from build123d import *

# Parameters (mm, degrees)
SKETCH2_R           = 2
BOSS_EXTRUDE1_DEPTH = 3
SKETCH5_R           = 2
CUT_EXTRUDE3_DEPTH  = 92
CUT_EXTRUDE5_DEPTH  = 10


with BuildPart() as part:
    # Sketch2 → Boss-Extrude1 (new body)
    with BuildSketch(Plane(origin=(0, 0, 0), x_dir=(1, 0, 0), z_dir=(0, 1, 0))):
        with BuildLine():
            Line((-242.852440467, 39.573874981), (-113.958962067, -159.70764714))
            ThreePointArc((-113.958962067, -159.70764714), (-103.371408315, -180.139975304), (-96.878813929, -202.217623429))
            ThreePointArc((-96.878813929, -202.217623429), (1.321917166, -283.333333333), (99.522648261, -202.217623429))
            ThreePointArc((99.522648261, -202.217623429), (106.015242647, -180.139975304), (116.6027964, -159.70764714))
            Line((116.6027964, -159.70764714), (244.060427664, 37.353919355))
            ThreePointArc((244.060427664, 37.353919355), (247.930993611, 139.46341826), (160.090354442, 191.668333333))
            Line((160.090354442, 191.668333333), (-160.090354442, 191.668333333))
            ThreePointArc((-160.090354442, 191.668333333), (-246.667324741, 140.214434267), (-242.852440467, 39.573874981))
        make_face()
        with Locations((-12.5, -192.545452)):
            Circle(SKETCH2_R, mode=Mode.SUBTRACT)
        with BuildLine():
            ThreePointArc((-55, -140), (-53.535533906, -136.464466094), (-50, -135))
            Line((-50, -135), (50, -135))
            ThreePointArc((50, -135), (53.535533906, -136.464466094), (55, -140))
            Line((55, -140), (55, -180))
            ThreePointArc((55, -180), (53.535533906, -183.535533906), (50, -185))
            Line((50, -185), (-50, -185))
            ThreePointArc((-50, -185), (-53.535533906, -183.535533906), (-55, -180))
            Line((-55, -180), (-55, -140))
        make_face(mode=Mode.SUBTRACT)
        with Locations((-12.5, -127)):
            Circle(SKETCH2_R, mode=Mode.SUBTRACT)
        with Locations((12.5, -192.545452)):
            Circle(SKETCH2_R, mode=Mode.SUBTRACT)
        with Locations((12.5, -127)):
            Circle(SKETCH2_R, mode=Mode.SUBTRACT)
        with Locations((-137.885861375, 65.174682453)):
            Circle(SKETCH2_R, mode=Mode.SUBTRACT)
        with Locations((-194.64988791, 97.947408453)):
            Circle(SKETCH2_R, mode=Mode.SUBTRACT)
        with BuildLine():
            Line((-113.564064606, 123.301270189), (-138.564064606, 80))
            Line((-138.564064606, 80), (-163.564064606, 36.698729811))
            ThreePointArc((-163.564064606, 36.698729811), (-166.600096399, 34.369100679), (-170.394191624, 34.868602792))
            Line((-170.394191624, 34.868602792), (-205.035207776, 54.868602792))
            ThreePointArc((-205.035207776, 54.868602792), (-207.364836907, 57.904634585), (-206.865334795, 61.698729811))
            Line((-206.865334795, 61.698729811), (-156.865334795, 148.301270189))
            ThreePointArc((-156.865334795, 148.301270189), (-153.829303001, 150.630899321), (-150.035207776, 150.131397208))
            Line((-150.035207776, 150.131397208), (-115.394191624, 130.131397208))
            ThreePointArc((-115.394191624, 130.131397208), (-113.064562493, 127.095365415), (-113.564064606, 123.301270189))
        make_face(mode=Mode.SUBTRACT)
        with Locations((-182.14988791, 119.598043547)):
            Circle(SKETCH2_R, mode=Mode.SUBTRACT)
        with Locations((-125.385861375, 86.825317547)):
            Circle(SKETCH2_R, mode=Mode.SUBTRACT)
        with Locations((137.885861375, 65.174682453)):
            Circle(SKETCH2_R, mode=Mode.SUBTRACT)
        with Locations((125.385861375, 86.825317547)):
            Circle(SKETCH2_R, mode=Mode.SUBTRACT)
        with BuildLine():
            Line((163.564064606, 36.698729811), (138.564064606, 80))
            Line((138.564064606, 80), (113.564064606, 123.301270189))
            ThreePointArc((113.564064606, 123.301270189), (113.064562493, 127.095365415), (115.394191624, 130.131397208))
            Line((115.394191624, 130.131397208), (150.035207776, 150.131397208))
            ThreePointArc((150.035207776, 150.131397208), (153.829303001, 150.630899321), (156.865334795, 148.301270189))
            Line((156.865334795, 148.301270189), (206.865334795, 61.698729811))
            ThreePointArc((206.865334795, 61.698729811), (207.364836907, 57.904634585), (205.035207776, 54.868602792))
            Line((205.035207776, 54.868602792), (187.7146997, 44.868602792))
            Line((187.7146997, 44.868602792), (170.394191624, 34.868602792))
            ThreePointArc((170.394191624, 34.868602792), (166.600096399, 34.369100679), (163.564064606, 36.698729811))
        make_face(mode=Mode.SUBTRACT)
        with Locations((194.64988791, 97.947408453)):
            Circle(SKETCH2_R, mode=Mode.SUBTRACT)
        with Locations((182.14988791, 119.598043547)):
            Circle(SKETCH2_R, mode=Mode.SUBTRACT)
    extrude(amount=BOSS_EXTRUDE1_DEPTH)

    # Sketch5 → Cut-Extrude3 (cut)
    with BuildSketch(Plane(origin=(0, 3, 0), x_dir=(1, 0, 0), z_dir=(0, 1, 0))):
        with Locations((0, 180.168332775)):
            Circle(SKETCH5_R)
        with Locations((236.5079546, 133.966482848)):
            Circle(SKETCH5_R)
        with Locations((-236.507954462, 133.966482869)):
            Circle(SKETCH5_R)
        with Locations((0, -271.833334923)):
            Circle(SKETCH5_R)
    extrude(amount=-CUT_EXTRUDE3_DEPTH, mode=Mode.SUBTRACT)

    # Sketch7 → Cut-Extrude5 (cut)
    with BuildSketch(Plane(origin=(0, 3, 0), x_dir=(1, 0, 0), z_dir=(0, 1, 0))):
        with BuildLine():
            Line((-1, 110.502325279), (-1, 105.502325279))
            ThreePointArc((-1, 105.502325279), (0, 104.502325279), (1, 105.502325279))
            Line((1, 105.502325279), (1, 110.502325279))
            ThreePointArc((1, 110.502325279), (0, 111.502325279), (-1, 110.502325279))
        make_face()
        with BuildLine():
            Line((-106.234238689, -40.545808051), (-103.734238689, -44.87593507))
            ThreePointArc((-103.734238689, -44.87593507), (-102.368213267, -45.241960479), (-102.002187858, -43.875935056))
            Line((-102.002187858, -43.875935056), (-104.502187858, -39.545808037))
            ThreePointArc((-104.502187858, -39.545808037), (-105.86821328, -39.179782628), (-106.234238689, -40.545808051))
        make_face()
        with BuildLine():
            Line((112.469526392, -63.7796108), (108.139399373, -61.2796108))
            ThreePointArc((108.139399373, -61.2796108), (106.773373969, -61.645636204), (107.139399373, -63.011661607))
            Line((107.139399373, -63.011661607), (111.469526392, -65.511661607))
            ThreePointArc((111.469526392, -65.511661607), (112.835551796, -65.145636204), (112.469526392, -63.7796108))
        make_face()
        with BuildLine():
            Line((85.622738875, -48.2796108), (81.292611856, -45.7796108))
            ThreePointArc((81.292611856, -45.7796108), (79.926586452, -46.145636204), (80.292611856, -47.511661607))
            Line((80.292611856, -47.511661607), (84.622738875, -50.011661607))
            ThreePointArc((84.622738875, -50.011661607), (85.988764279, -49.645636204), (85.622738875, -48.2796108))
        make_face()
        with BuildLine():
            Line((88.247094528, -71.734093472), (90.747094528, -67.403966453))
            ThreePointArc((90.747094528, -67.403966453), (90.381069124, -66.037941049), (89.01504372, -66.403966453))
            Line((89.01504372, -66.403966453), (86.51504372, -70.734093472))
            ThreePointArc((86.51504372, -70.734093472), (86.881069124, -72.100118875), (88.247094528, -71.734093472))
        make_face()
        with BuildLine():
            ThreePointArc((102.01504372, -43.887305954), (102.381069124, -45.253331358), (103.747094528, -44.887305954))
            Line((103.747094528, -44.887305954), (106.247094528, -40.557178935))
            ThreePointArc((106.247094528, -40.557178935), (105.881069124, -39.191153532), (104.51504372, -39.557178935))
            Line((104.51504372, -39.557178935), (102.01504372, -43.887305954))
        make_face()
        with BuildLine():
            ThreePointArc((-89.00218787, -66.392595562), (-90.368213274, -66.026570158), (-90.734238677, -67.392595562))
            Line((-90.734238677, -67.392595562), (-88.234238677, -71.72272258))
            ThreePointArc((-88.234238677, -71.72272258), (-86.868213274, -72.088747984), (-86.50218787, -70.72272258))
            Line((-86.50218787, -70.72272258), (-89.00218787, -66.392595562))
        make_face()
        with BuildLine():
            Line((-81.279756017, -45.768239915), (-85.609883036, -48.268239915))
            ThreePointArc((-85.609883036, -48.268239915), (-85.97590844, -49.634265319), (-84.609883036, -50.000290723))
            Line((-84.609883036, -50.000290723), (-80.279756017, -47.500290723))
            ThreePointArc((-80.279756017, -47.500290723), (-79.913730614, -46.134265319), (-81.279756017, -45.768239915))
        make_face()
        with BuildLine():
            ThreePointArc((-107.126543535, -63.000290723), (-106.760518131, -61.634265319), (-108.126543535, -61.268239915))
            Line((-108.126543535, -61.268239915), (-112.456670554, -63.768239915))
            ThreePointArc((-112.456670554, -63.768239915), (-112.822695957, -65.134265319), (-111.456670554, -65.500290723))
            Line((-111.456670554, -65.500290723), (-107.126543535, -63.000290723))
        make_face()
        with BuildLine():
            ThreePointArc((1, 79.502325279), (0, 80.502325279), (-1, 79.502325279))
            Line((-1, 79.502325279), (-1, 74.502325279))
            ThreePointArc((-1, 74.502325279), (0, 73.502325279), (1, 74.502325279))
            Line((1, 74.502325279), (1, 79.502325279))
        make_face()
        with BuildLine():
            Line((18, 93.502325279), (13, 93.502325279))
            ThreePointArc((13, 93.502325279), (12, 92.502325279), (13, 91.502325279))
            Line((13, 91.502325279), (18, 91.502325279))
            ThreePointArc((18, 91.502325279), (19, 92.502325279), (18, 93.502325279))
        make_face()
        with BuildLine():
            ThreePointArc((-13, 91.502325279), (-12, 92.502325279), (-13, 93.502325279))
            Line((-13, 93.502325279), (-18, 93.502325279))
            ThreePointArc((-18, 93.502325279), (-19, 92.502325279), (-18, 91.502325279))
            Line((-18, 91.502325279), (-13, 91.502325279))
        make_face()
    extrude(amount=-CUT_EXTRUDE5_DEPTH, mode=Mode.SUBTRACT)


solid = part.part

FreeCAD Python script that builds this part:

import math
import FreeCAD as App
import Part
import Sketcher
Q = App.Units.Quantity

doc = App.newDocument("Part")
body = doc.addObject("PartDesign::Body", "Body")

sketch1 = body.newObject("Sketcher::SketchObject", "Sketch")
sketch1.AttachmentSupport = (doc.getObject("XZ_Plane"), [""])
sketch1.MapMode = "FlatFace"
sketch1.addGeometry(Part.LineSegment(App.Vector(-242.9, -39.6, 0), App.Vector(-114, 159.7, 0)), False)
sketch1.addGeometry(Part.ArcOfCircle(Part.Circle(App.Vector(-214.7, 224.9, 0), App.Vector(0, 0, 1), 120), math.radians(-33), math.radians(-11)), False)
sketch1.addGeometry(Part.ArcOfCircle(Part.Circle(App.Vector(1.3, 183.3, 0), App.Vector(0, 0, 1), 100), math.radians(11), math.radians(169)), False)
sketch1.addGeometry(Part.ArcOfCircle(Part.Circle(App.Vector(217.4, 224.9, 0), App.Vector(0, 0, 1), 120), math.radians(-169), math.radians(-147)), False)
sketch1.addGeometry(Part.LineSegment(App.Vector(116.6, 159.7, 0), App.Vector(244.1, -37.4, 0)), False)
sketch1.addGeometry(Part.ArcOfCircle(Part.Circle(App.Vector(160.1, -91.7, 0), App.Vector(0, 0, 1), 100), math.radians(-90), math.radians(33)), False)
sketch1.addGeometry(Part.LineSegment(App.Vector(160.1, -191.7, 0), App.Vector(-160.1, -191.7, 0)), False)
sketch1.addGeometry(Part.ArcOfCircle(Part.Circle(App.Vector(-160.1, -93.1, 0), App.Vector(0, 0, 1), 98.6), math.radians(147), math.radians(270)), False)
sketch1.addGeometry(Part.Circle(App.Vector(-12.5, 192.5, 0), App.Vector(0, 0, 1), 2), False)
sketch1.addGeometry(Part.Circle(App.Vector(-12.5, 127, 0), App.Vector(0, 0, 1), 2), False)
sketch1.addGeometry(Part.Circle(App.Vector(12.5, 192.5, 0), App.Vector(0, 0, 1), 2), False)
sketch1.addGeometry(Part.LineSegment(App.Vector(-55, 180, 0), App.Vector(-55, 140, 0)), False)
sketch1.addGeometry(Part.ArcOfCircle(Part.Circle(App.Vector(-50, 140, 0), App.Vector(0, 0, 1), 5), math.radians(180), math.radians(270)), False)
sketch1.addGeometry(Part.LineSegment(App.Vector(-50, 135, 0), App.Vector(50, 135, 0)), False)
sketch1.addGeometry(Part.ArcOfCircle(Part.Circle(App.Vector(50, 140, 0), App.Vector(0, 0, 1), 5), math.radians(-90), math.radians(0)), False)
sketch1.addGeometry(Part.LineSegment(App.Vector(55, 140, 0), App.Vector(55, 180, 0)), False)
sketch1.addGeometry(Part.ArcOfCircle(Part.Circle(App.Vector(50, 180, 0), App.Vector(0, 0, 1), 5), math.radians(0), math.radians(90)), False)
sketch1.addGeometry(Part.LineSegment(App.Vector(50, 185, 0), App.Vector(-50, 185, 0)), False)
sketch1.addGeometry(Part.ArcOfCircle(Part.Circle(App.Vector(-50, 180, 0), App.Vector(0, 0, 1), 5), math.radians(90), math.radians(180)), False)
sketch1.addGeometry(Part.Circle(App.Vector(12.5, 127, 0), App.Vector(0, 0, 1), 2), False)
sketch1.addGeometry(Part.Circle(App.Vector(-194.6, -97.9, 0), App.Vector(0, 0, 1), 2), False)
sketch1.addGeometry(Part.ArcOfCircle(Part.Circle(App.Vector(-117.9, -125.8, 0), App.Vector(0, 0, 1), 5), math.radians(-60), math.radians(30)), False)
sketch1.addGeometry(Part.LineSegment(App.Vector(-113.6, -123.3, 0), App.Vector(-163.6, -36.7, 0)), False)
sketch1.addGeometry(Part.ArcOfCircle(Part.Circle(App.Vector(-167.9, -39.2, 0), App.Vector(0, 0, 1), 5), math.radians(30), math.radians(120)), False)
sketch1.addGeometry(Part.LineSegment(App.Vector(-170.4, -34.9, 0), App.Vector(-205, -54.9, 0)), False)
sketch1.addGeometry(Part.ArcOfCircle(Part.Circle(App.Vector(-202.5, -59.2, 0), App.Vector(0, 0, 1), 5), math.radians(120), math.radians(210)), False)
sketch1.addGeometry(Part.LineSegment(App.Vector(-206.9, -61.7, 0), App.Vector(-156.9, -148.3, 0)), False)
sketch1.addGeometry(Part.ArcOfCircle(Part.Circle(App.Vector(-152.5, -145.8, 0), App.Vector(0, 0, 1), 5), math.radians(-150), math.radians(-60)), False)
sketch1.addGeometry(Part.LineSegment(App.Vector(-150, -150.1, 0), App.Vector(-115.4, -130.1, 0)), False)
sketch1.addGeometry(Part.Circle(App.Vector(-137.9, -65.2, 0), App.Vector(0, 0, 1), 2), False)
sketch1.addGeometry(Part.Circle(App.Vector(-125.4, -86.8, 0), App.Vector(0, 0, 1), 2), False)
sketch1.addGeometry(Part.Circle(App.Vector(-182.1, -119.6, 0), App.Vector(0, 0, 1), 2), False)
sketch1.addGeometry(Part.Circle(App.Vector(137.9, -65.2, 0), App.Vector(0, 0, 1), 2), False)
sketch1.addGeometry(Part.Circle(App.Vector(125.4, -86.8, 0), App.Vector(0, 0, 1), 2), False)
sketch1.addGeometry(Part.ArcOfCircle(Part.Circle(App.Vector(167.9, -39.2, 0), App.Vector(0, 0, 1), 5), math.radians(60), math.radians(150)), False)
sketch1.addGeometry(Part.LineSegment(App.Vector(163.6, -36.7, 0), App.Vector(113.6, -123.3, 0)), False)
sketch1.addGeometry(Part.ArcOfCircle(Part.Circle(App.Vector(117.9, -125.8, 0), App.Vector(0, 0, 1), 5), math.radians(150), math.radians(240)), False)
sketch1.addGeometry(Part.LineSegment(App.Vector(115.4, -130.1, 0), App.Vector(150, -150.1, 0)), False)
sketch1.addGeometry(Part.ArcOfCircle(Part.Circle(App.Vector(152.5, -145.8, 0), App.Vector(0, 0, 1), 5), math.radians(-120), math.radians(-30)), False)
sketch1.addGeometry(Part.LineSegment(App.Vector(156.9, -148.3, 0), App.Vector(206.9, -61.7, 0)), False)
sketch1.addGeometry(Part.ArcOfCircle(Part.Circle(App.Vector(202.5, -59.2, 0), App.Vector(0, 0, 1), 5), math.radians(-30), math.radians(60)), False)
sketch1.addGeometry(Part.LineSegment(App.Vector(205, -54.9, 0), App.Vector(170.4, -34.9, 0)), False)
sketch1.addGeometry(Part.Circle(App.Vector(194.6, -97.9, 0), App.Vector(0, 0, 1), 2), False)
sketch1.addGeometry(Part.Circle(App.Vector(182.1, -119.6, 0), App.Vector(0, 0, 1), 2), False)
sketch1.addConstraint(Sketcher.Constraint("Tangent", 0, 2, 1, 1))
sketch1.addConstraint(Sketcher.Constraint("Tangent", 1, 2, 2, 2))
sketch1.addConstraint(Sketcher.Constraint("Tangent", 2, 1, 3, 1))
sketch1.addConstraint(Sketcher.Constraint("Tangent", 3, 2, 4, 1))
sketch1.addConstraint(Sketcher.Constraint("Tangent", 4, 2, 5, 2))
sketch1.addConstraint(Sketcher.Constraint("Tangent", 5, 1, 6, 1))
sketch1.addConstraint(Sketcher.Constraint("Tangent", 6, 2, 7, 2))
sketch1.addConstraint(Sketcher.Constraint("Tangent", 7, 1, 0, 1))
sketch1.addConstraint(Sketcher.Constraint("Tangent", 11, 2, 12, 1))
sketch1.addConstraint(Sketcher.Constraint("Tangent", 12, 2, 13, 1))
sketch1.addConstraint(Sketcher.Constraint("Tangent", 13, 2, 14, 1))
sketch1.addConstraint(Sketcher.Constraint("Tangent", 14, 2, 15, 1))
sketch1.addConstraint(Sketcher.Constraint("Tangent", 15, 2, 16, 1))
sketch1.addConstraint(Sketcher.Constraint("Tangent", 16, 2, 17, 1))
sketch1.addConstraint(Sketcher.Constraint("Tangent", 17, 2, 18, 1))
sketch1.addConstraint(Sketcher.Constraint("Tangent", 18, 2, 11, 1))
sketch1.addConstraint(Sketcher.Constraint("Tangent", 21, 2, 22, 1))
sketch1.addConstraint(Sketcher.Constraint("Tangent", 22, 2, 23, 1))
sketch1.addConstraint(Sketcher.Constraint("Tangent", 23, 2, 24, 1))
sketch1.addConstraint(Sketcher.Constraint("Tangent", 24, 2, 25, 1))
sketch1.addConstraint(Sketcher.Constraint("Tangent", 25, 2, 26, 1))
sketch1.addConstraint(Sketcher.Constraint("Tangent", 26, 2, 27, 1))
sketch1.addConstraint(Sketcher.Constraint("Tangent", 27, 2, 28, 1))
sketch1.addConstraint(Sketcher.Constraint("Tangent", 28, 2, 21, 1))
sketch1.addConstraint(Sketcher.Constraint("Tangent", 34, 2, 35, 1))
sketch1.addConstraint(Sketcher.Constraint("Tangent", 35, 2, 36, 1))
sketch1.addConstraint(Sketcher.Constraint("Tangent", 36, 2, 37, 1))
sketch1.addConstraint(Sketcher.Constraint("Tangent", 37, 2, 38, 1))
sketch1.addConstraint(Sketcher.Constraint("Tangent", 38, 2, 39, 1))
sketch1.addConstraint(Sketcher.Constraint("Tangent", 39, 2, 40, 1))
sketch1.addConstraint(Sketcher.Constraint("Tangent", 40, 2, 41, 1))
sketch1.addConstraint(Sketcher.Constraint("Tangent", 41, 2, 34, 1))
sketch1.addConstraint(Sketcher.Constraint("Horizontal", 6))
sketch1.addConstraint(Sketcher.Constraint("Vertical", 11))
sketch1.addConstraint(Sketcher.Constraint("Horizontal", 13))
sketch1.addConstraint(Sketcher.Constraint("Vertical", 15))
sketch1.addConstraint(Sketcher.Constraint("Horizontal", 17))
sketch1.addConstraint(Sketcher.Constraint("Equal", 1, 3))
sketch1.addConstraint(Sketcher.Constraint("Equal", 8, 9))
sketch1.addConstraint(Sketcher.Constraint("Equal", 9, 10))
sketch1.addConstraint(Sketcher.Constraint("Equal", 12, 14))
sketch1.addConstraint(Sketcher.Constraint("Equal", 14, 16))
sketch1.addConstraint(Sketcher.Constraint("Equal", 16, 18))
sketch1.addConstraint(Sketcher.Constraint("Equal", 10, 19))
sketch1.addConstraint(Sketcher.Constraint("Equal", 19, 20))
sketch1.addConstraint(Sketcher.Constraint("Equal", 18, 21))
sketch1.addConstraint(Sketcher.Constraint("Equal", 21, 23))
sketch1.addConstraint(Sketcher.Constraint("Equal", 23, 25))
sketch1.addConstraint(Sketcher.Constraint("Equal", 25, 27))
sketch1.addConstraint(Sketcher.Constraint("Equal", 20, 29))
sketch1.addConstraint(Sketcher.Constraint("Equal", 29, 30))
sketch1.addConstraint(Sketcher.Constraint("Equal", 30, 31))
sketch1.addConstraint(Sketcher.Constraint("Equal", 31, 32))
sketch1.addConstraint(Sketcher.Constraint("Equal", 32, 33))
sketch1.addConstraint(Sketcher.Constraint("Equal", 27, 34))
sketch1.addConstraint(Sketcher.Constraint("Equal", 34, 36))
sketch1.addConstraint(Sketcher.Constraint("Equal", 36, 38))
sketch1.addConstraint(Sketcher.Constraint("Equal", 38, 40))
sketch1.addConstraint(Sketcher.Constraint("Equal", 33, 42))
sketch1.addConstraint(Sketcher.Constraint("Equal", 42, 43))
sketch1.addConstraint(Sketcher.Constraint("Symmetric", 8, 3, 10, 3, -2))
sketch1.addConstraint(Sketcher.Constraint("Symmetric", 9, 3, 19, 3, -2))
sketch1.addConstraint(Sketcher.Constraint("Symmetric", 29, 3, 32, 3, -2))
sketch1.addConstraint(Sketcher.Constraint("Symmetric", 30, 3, 33, 3, -2))
sketch1.addConstraint(Sketcher.Constraint("Symmetric", 23, 3, 34, 3, -2))
sketch1.addConstraint(Sketcher.Constraint("Symmetric", 21, 3, 36, 3, -2))
sketch1.addConstraint(Sketcher.Constraint("Symmetric", 27, 3, 38, 3, -2))
sketch1.addConstraint(Sketcher.Constraint("Symmetric", 25, 3, 40, 3, -2))
sketch1.addConstraint(Sketcher.Constraint("Symmetric", 20, 3, 42, 3, -2))
sketch1.addConstraint(Sketcher.Constraint("Symmetric", 31, 3, 43, 3, -2))
sketch1.addConstraint(Sketcher.Constraint("Perpendicular", 22, 24))
sketch1.addConstraint(Sketcher.Constraint("Perpendicular", 24, 26))
sketch1.addConstraint(Sketcher.Constraint("Perpendicular", 26, 28))
sketch1.addConstraint(Sketcher.Constraint("Horizontal", 1, 3, 3, 3))
sketch1.addConstraint(Sketcher.Constraint("Horizontal", 0, 2, 3, 2))
sketch1.addConstraint(Sketcher.Constraint("Vertical", 8, 3, 9, 3))
sketch1.addConstraint(Sketcher.Constraint("Diameter", 8, Q("4 mm")))
sketch1.addConstraint(Sketcher.Constraint("Radius", 1, Q("120 mm")))
sketch1.addConstraint(Sketcher.Constraint("Radius", 2, Q("100 mm")))
sketch1.addConstraint(Sketcher.Constraint("Radius", 12, Q("5 mm")))
sketch1.addConstraint(Sketcher.Constraint("DistanceX", 13, 1, 13, 2, Q("100 mm")))
sketch1.addConstraint(Sketcher.Constraint("DistanceY", 11, 2, 11, 1, Q("40 mm")))
sketch1.addConstraint(Sketcher.Constraint("Angle", 22, Q("120 deg")))
sketch1.addConstraint(Sketcher.Constraint("Distance", 22, Q("100 mm")))
sketch1.addConstraint(Sketcher.Constraint("Distance", 24, Q("40 mm")))
sketch1.addConstraint(Sketcher.Constraint("DistanceY", -1, 1, 9, 3, Q("127 mm")))
sketch1.addConstraint(Sketcher.Constraint("DistanceX", 12, 3, -1, 1, Q("50 mm")))
sketch1.addConstraint(Sketcher.Constraint("DistanceY", -1, 1, 12, 3, Q("140 mm")))
sketch1.addConstraint(Sketcher.Constraint("DistanceX", 8, 3, -1, 1, Q("12.5 mm")))
sketch1.addConstraint(Sketcher.Constraint("DistanceY", 5, 3, -1, 1, Q("91.665 mm")))
sketch1.addConstraint(Sketcher.Constraint("Radius", 5, Q("100.003333 mm")))
sketch1.addConstraint(Sketcher.Constraint("Radius", 7, Q("98.564693 mm")))
sketch1.addConstraint(Sketcher.Constraint("DistanceX", 6, 2, 6, 1, Q("320.180709 mm")))
sketch1.addConstraint(Sketcher.Constraint("Distance", 0, Q("237.33237 mm")))
sketch1.addConstraint(Sketcher.Constraint("DistanceX", 1, 3, -1, 1, Q("214.719691 mm")))
sketch1.addConstraint(Sketcher.Constraint("DistanceY", -1, 1, 1, 3, Q("224.878772 mm")))
sketch1.addConstraint(Sketcher.Constraint("DistanceY", 20, 3, -1, 1, Q("97.947408 mm")))
sketch1.addConstraint(Sketcher.Constraint("DistanceX", 21, 3, -1, 1, Q("117.894192 mm")))
sketch1.addConstraint(Sketcher.Constraint("DistanceY", 21, 3, -1, 1, Q("125.80127 mm")))
sketch1.addConstraint(Sketcher.Constraint("DistanceX", 29, 3, -1, 1, Q("137.885861 mm")))
sketch1.addConstraint(Sketcher.Constraint("DistanceX", 30, 3, -1, 1, Q("125.385861 mm")))
sketch1.addConstraint(Sketcher.Constraint("DistanceY", -1, 1, 8, 3, Q("192.545452 mm")))
sketch1.addConstraint(Sketcher.Constraint("DistanceX", 20, 3, -1, 1, Q("194.649888 mm")))
sketch1.addConstraint(Sketcher.Constraint("DistanceY", 29, 3, -1, 1, Q("65.174682 mm")))
sketch1.addConstraint(Sketcher.Constraint("DistanceY", 30, 3, -1, 1, Q("86.825318 mm")))
sketch1.addConstraint(Sketcher.Constraint("DistanceX", 31, 3, -1, 1, Q("182.149888 mm")))
sketch1.addConstraint(Sketcher.Constraint("DistanceY", 31, 3, -1, 1, Q("119.598044 mm")))
pad1 = body.newObject("PartDesign::Pad", "Pad")
pad1.Profile = sketch1
pad1.Length = 3
pad1.Reversed = True

sketch2 = body.newObject("Sketcher::SketchObject", "Sketch001")
sketch2.AttachmentSupport = (doc.getObject("XZ_Plane"), [""])
sketch2.MapMode = "FlatFace"
sketch2.AttachmentOffset = App.Placement(App.Vector(0, 0, -3), App.Rotation())
sketch2.addGeometry(Part.Circle(App.Vector(0, -180.2, 0), App.Vector(0, 0, 1), 2), False)
sketch2.addGeometry(Part.Circle(App.Vector(236.5, -134, 0), App.Vector(0, 0, 1), 2), False)
sketch2.addGeometry(Part.Circle(App.Vector(-236.5, -134, 0), App.Vector(0, 0, 1), 2), False)
sketch2.addGeometry(Part.Circle(App.Vector(0, 271.8, 0), App.Vector(0, 0, 1), 2), False)
sketch2.addConstraint(Sketcher.Constraint("Equal", 0, 1))
sketch2.addConstraint(Sketcher.Constraint("Equal", 1, 2))
sketch2.addConstraint(Sketcher.Constraint("Equal", 2, 3))
sketch2.addConstraint(Sketcher.Constraint("Symmetric", 1, 3, 2, 3, -2))
sketch2.addConstraint(Sketcher.Constraint("PointOnObject", 0, 3, -2))
sketch2.addConstraint(Sketcher.Constraint("PointOnObject", 3, 3, -2))
sketch2.addConstraint(Sketcher.Constraint("Diameter", 0, Q("4 mm")))
sketch2.addConstraint(Sketcher.Constraint("DistanceY", 0, 3, 1, 3, Q("46.20185 mm")))
sketch2.addConstraint(Sketcher.Constraint("DistanceX", 2, 3, 1, 3, Q("473.015909 mm")))
sketch2.addConstraint(Sketcher.Constraint("DistanceY", 0, 3, -1, 1, Q("180.168333 mm")))
sketch2.addConstraint(Sketcher.Constraint("DistanceY", -1, 1, 3, 3, Q("271.833335 mm")))
pocket1 = body.newObject("PartDesign::Pocket", "Pocket")
pocket1.Profile = sketch2
pocket1.Length = 92
pocket1.Reversed = True

sketch3 = body.newObject("Sketcher::SketchObject", "Sketch002")
sketch3.AttachmentSupport = (doc.getObject("XZ_Plane"), [""])
sketch3.MapMode = "FlatFace"
sketch3.AttachmentOffset = App.Placement(App.Vector(0, 0, -3), App.Rotation())
sketch3.addGeometry(Part.LineSegment(App.Vector(-1, -110.5, 0), App.Vector(-1, -105.5, 0)), False)
sketch3.addGeometry(Part.ArcOfCircle(Part.Circle(App.Vector(0, -105.5, 0), App.Vector(0, 0, 1), 1), math.radians(0), math.radians(180)), False)
sketch3.addGeometry(Part.LineSegment(App.Vector(1, -105.5, 0), App.Vector(1, -110.5, 0)), False)
sketch3.addGeometry(Part.ArcOfCircle(Part.Circle(App.Vector(0, -110.5, 0), App.Vector(0, 0, 1), 1), math.radians(180), math.radians(360)), False)
sketch3.addGeometry(Part.LineSegment(App.Vector(-106.2, 40.5, 0), App.Vector(-103.7, 44.9, 0)), False)
sketch3.addGeometry(Part.ArcOfCircle(Part.Circle(App.Vector(-102.9, 44.4, 0), App.Vector(0, 0, 1), 1), math.radians(-30), math.radians(150)), False)
sketch3.addGeometry(Part.LineSegment(App.Vector(-102, 43.9, 0), App.Vector(-104.5, 39.5, 0)), False)
sketch3.addGeometry(Part.ArcOfCircle(Part.Circle(App.Vector(-105.4, 40, 0), App.Vector(0, 0, 1), 1), math.radians(150), math.radians(330)), False)
sketch3.addGeometry(Part.LineSegment(App.Vector(112.5, 63.8, 0), App.Vector(108.1, 61.3, 0)), False)
sketch3.addGeometry(Part.ArcOfCircle(Part.Circle(App.Vector(107.6, 62.1, 0), App.Vector(0, 0, 1), 1), math.radians(120), math.radians(300)), False)
sketch3.addGeometry(Part.LineSegment(App.Vector(107.1, 63, 0), App.Vector(111.5, 65.5, 0)), False)
sketch3.addGeometry(Part.ArcOfCircle(Part.Circle(App.Vector(112, 64.6, 0), App.Vector(0, 0, 1), 1), math.radians(-60), math.radians(120)), False)
sketch3.addGeometry(Part.LineSegment(App.Vector(85.6, 48.3, 0), App.Vector(81.3, 45.8, 0)), False)
sketch3.addGeometry(Part.ArcOfCircle(Part.Circle(App.Vector(80.8, 46.6, 0), App.Vector(0, 0, 1), 1), math.radians(120), math.radians(300)), False)
sketch3.addGeometry(Part.LineSegment(App.Vector(80.3, 47.5, 0), App.Vector(84.6, 50, 0)), False)
sketch3.addGeometry(Part.ArcOfCircle(Part.Circle(App.Vector(85.1, 49.1, 0), App.Vector(0, 0, 1), 1), math.radians(-60), math.radians(120)), False)
sketch3.addGeometry(Part.LineSegment(App.Vector(88.2, 71.7, 0), App.Vector(90.7, 67.4, 0)), False)
sketch3.addGeometry(Part.ArcOfCircle(Part.Circle(App.Vector(89.9, 66.9, 0), App.Vector(0, 0, 1), 1), math.radians(-150), math.radians(30)), False)
sketch3.addGeometry(Part.LineSegment(App.Vector(89, 66.4, 0), App.Vector(86.5, 70.7, 0)), False)
sketch3.addGeometry(Part.ArcOfCircle(Part.Circle(App.Vector(87.4, 71.2, 0), App.Vector(0, 0, 1), 1), math.radians(30), math.radians(210)), False)
sketch3.addGeometry(Part.ArcOfCircle(Part.Circle(App.Vector(102.9, 44.4, 0), App.Vector(0, 0, 1), 1), math.radians(30), math.radians(210)), False)
sketch3.addGeometry(Part.LineSegment(App.Vector(103.7, 44.9, 0), App.Vector(106.2, 40.6, 0)), False)
sketch3.addGeometry(Part.ArcOfCircle(Part.Circle(App.Vector(105.4, 40.1, 0), App.Vector(0, 0, 1), 1), math.radians(-150), math.radians(30)), False)
sketch3.addGeometry(Part.LineSegment(App.Vector(104.5, 39.6, 0), App.Vector(102, 43.9, 0)), False)
sketch3.addGeometry(Part.ArcOfCircle(Part.Circle(App.Vector(-89.9, 66.9, 0), App.Vector(0, 0, 1), 1), math.radians(150), math.radians(330)), False)
sketch3.addGeometry(Part.LineSegment(App.Vector(-90.7, 67.4, 0), App.Vector(-88.2, 71.7, 0)), False)
sketch3.addGeometry(Part.ArcOfCircle(Part.Circle(App.Vector(-87.4, 71.2, 0), App.Vector(0, 0, 1), 1), math.radians(-30), math.radians(150)), False)
sketch3.addGeometry(Part.LineSegment(App.Vector(-86.5, 70.7, 0), App.Vector(-89, 66.4, 0)), False)
sketch3.addGeometry(Part.LineSegment(App.Vector(-81.3, 45.8, 0), App.Vector(-85.6, 48.3, 0)), False)
sketch3.addGeometry(Part.ArcOfCircle(Part.Circle(App.Vector(-85.1, 49.1, 0), App.Vector(0, 0, 1), 1), math.radians(60), math.radians(240)), False)
sketch3.addGeometry(Part.LineSegment(App.Vector(-84.6, 50, 0), App.Vector(-80.3, 47.5, 0)), False)
sketch3.addGeometry(Part.ArcOfCircle(Part.Circle(App.Vector(-80.8, 46.6, 0), App.Vector(0, 0, 1), 1), math.radians(-120), math.radians(60)), False)
sketch3.addGeometry(Part.ArcOfCircle(Part.Circle(App.Vector(-107.6, 62.1, 0), App.Vector(0, 0, 1), 1), math.radians(-120), math.radians(60)), False)
sketch3.addGeometry(Part.LineSegment(App.Vector(-108.1, 61.3, 0), App.Vector(-112.5, 63.8, 0)), False)
sketch3.addGeometry(Part.ArcOfCircle(Part.Circle(App.Vector(-112, 64.6, 0), App.Vector(0, 0, 1), 1), math.radians(60), math.radians(240)), False)
sketch3.addGeometry(Part.LineSegment(App.Vector(-111.5, 65.5, 0), App.Vector(-107.1, 63, 0)), False)
sketch3.addGeometry(Part.ArcOfCircle(Part.Circle(App.Vector(0, -79.5, 0), App.Vector(0, 0, 1), 1), math.radians(180), math.radians(360)), False)
sketch3.addGeometry(Part.LineSegment(App.Vector(-1, -79.5, 0), App.Vector(-1, -74.5, 0)), False)
sketch3.addGeometry(Part.ArcOfCircle(Part.Circle(App.Vector(0, -74.5, 0), App.Vector(0, 0, 1), 1), math.radians(0), math.radians(180)), False)
sketch3.addGeometry(Part.LineSegment(App.Vector(1, -74.5, 0), App.Vector(1, -79.5, 0)), False)
sketch3.addGeometry(Part.LineSegment(App.Vector(18, -93.5, 0), App.Vector(13, -93.5, 0)), False)
sketch3.addGeometry(Part.ArcOfCircle(Part.Circle(App.Vector(13, -92.5, 0), App.Vector(0, 0, 1), 1), math.radians(90), math.radians(270)), False)
sketch3.addGeometry(Part.LineSegment(App.Vector(13, -91.5, 0), App.Vector(18, -91.5, 0)), False)
sketch3.addGeometry(Part.ArcOfCircle(Part.Circle(App.Vector(18, -92.5, 0), App.Vector(0, 0, 1), 1), math.radians(-90), math.radians(90)), False)
sketch3.addGeometry(Part.ArcOfCircle(Part.Circle(App.Vector(-13, -92.5, 0), App.Vector(0, 0, 1), 1), math.radians(-90), math.radians(90)), False)
sketch3.addGeometry(Part.LineSegment(App.Vector(-13, -93.5, 0), App.Vector(-18, -93.5, 0)), False)
sketch3.addGeometry(Part.ArcOfCircle(Part.Circle(App.Vector(-18, -92.5, 0), App.Vector(0, 0, 1), 1), math.radians(90), math.radians(270)), False)
sketch3.addGeometry(Part.LineSegment(App.Vector(-18, -91.5, 0), App.Vector(-13, -91.5, 0)), False)
sketch3.addConstraint(Sketcher.Constraint("Tangent", 0, 2, 1, 2))
sketch3.addConstraint(Sketcher.Constraint("Tangent", 1, 1, 2, 1))
sketch3.addConstraint(Sketcher.Constraint("Tangent", 2, 2, 3, 2))
sketch3.addConstraint(Sketcher.Constraint("Tangent", 3, 1, 0, 1))
sketch3.addConstraint(Sketcher.Constraint("Tangent", 4, 2, 5, 2))
sketch3.addConstraint(Sketcher.Constraint("Tangent", 5, 1, 6, 1))
sketch3.addConstraint(Sketcher.Constraint("Tangent", 6, 2, 7, 2))
sketch3.addConstraint(Sketcher.Constraint("Tangent", 7, 1, 4, 1))
sketch3.addConstraint(Sketcher.Constraint("Tangent", 8, 2, 9, 2))
sketch3.addConstraint(Sketcher.Constraint("Tangent", 9, 1, 10, 1))
sketch3.addConstraint(Sketcher.Constraint("Tangent", 10, 2, 11, 2))
sketch3.addConstraint(Sketcher.Constraint("Tangent", 11, 1, 8, 1))
sketch3.addConstraint(Sketcher.Constraint("Tangent", 12, 2, 13, 2))
sketch3.addConstraint(Sketcher.Constraint("Tangent", 13, 1, 14, 1))
sketch3.addConstraint(Sketcher.Constraint("Tangent", 14, 2, 15, 2))
sketch3.addConstraint(Sketcher.Constraint("Tangent", 15, 1, 12, 1))
sketch3.addConstraint(Sketcher.Constraint("Tangent", 16, 2, 17, 2))
sketch3.addConstraint(Sketcher.Constraint("Tangent", 17, 1, 18, 1))
sketch3.addConstraint(Sketcher.Constraint("Tangent", 18, 2, 19, 2))
sketch3.addConstraint(Sketcher.Constraint("Tangent", 19, 1, 16, 1))
sketch3.addConstraint(Sketcher.Constraint("Tangent", 20, 1, 21, 1))
sketch3.addConstraint(Sketcher.Constraint("Tangent", 21, 2, 22, 2))
sketch3.addConstraint(Sketcher.Constraint("Tangent", 22, 1, 23, 1))
sketch3.addConstraint(Sketcher.Constraint("Tangent", 23, 2, 20, 2))
sketch3.addConstraint(Sketcher.Constraint("Tangent", 24, 1, 25, 1))
sketch3.addConstraint(Sketcher.Constraint("Tangent", 25, 2, 26, 2))
sketch3.addConstraint(Sketcher.Constraint("Tangent", 26, 1, 27, 1))
sketch3.addConstraint(Sketcher.Constraint("Tangent", 27, 2, 24, 2))
sketch3.addConstraint(Sketcher.Constraint("Tangent", 28, 2, 29, 2))
sketch3.addConstraint(Sketcher.Constraint("Tangent", 29, 1, 30, 1))
sketch3.addConstraint(Sketcher.Constraint("Tangent", 30, 2, 31, 2))
sketch3.addConstraint(Sketcher.Constraint("Tangent", 31, 1, 28, 1))
sketch3.addConstraint(Sketcher.Constraint("Tangent", 32, 1, 33, 1))
sketch3.addConstraint(Sketcher.Constraint("Tangent", 33, 2, 34, 2))
sketch3.addConstraint(Sketcher.Constraint("Tangent", 34, 1, 35, 1))
sketch3.addConstraint(Sketcher.Constraint("Tangent", 35, 2, 32, 2))
sketch3.addConstraint(Sketcher.Constraint("Tangent", 36, 1, 37, 1))
sketch3.addConstraint(Sketcher.Constraint("Tangent", 37, 2, 38, 2))
sketch3.addConstraint(Sketcher.Constraint("Tangent", 38, 1, 39, 1))
sketch3.addConstraint(Sketcher.Constraint("Tangent", 39, 2, 36, 2))
sketch3.addConstraint(Sketcher.Constraint("Tangent", 40, 2, 41, 2))
sketch3.addConstraint(Sketcher.Constraint("Tangent", 41, 1, 42, 1))
sketch3.addConstraint(Sketcher.Constraint("Tangent", 42, 2, 43, 2))
sketch3.addConstraint(Sketcher.Constraint("Tangent", 43, 1, 40, 1))
sketch3.addConstraint(Sketcher.Constraint("Tangent", 44, 1, 45, 1))
sketch3.addConstraint(Sketcher.Constraint("Tangent", 45, 2, 46, 2))
sketch3.addConstraint(Sketcher.Constraint("Tangent", 46, 1, 47, 1))
sketch3.addConstraint(Sketcher.Constraint("Tangent", 47, 2, 44, 2))
sketch3.addConstraint(Sketcher.Constraint("Vertical", 0))
sketch3.addConstraint(Sketcher.Constraint("Vertical", 2))
sketch3.addConstraint(Sketcher.Constraint("Vertical", 37))
sketch3.addConstraint(Sketcher.Constraint("Vertical", 39))
sketch3.addConstraint(Sketcher.Constraint("Horizontal", 40))
sketch3.addConstraint(Sketcher.Constraint("Horizontal", 42))
sketch3.addConstraint(Sketcher.Constraint("Horizontal", 45))
sketch3.addConstraint(Sketcher.Constraint("Horizontal", 47))
sketch3.addConstraint(Sketcher.Constraint("Equal", 3, 5))
sketch3.addConstraint(Sketcher.Constraint("Equal", 5, 7))
sketch3.addConstraint(Sketcher.Constraint("Equal", 7, 9))
sketch3.addConstraint(Sketcher.Constraint("Equal", 9, 11))
sketch3.addConstraint(Sketcher.Constraint("Equal", 11, 13))
sketch3.addConstraint(Sketcher.Constraint("Equal", 13, 15))
sketch3.addConstraint(Sketcher.Constraint("Equal", 15, 17))
sketch3.addConstraint(Sketcher.Constraint("Equal", 17, 19))
sketch3.addConstraint(Sketcher.Constraint("Equal", 19, 20))
sketch3.addConstraint(Sketcher.Constraint("Equal", 20, 22))
sketch3.addConstraint(Sketcher.Constraint("Equal", 22, 24))
sketch3.addConstraint(Sketcher.Constraint("Equal", 24, 26))
sketch3.addConstraint(Sketcher.Constraint("Equal", 26, 29))
sketch3.addConstraint(Sketcher.Constraint("Equal", 29, 31))
sketch3.addConstraint(Sketcher.Constraint("Equal", 31, 32))
sketch3.addConstraint(Sketcher.Constraint("Equal", 32, 34))
sketch3.addConstraint(Sketcher.Constraint("Equal", 34, 36))
sketch3.addConstraint(Sketcher.Constraint("Equal", 38, 41))
sketch3.addConstraint(Sketcher.Constraint("Equal", 43, 44))
sketch3.addConstraint(Sketcher.Constraint("Symmetric", 41, 3, 44, 3, -2))
sketch3.addConstraint(Sketcher.Constraint("PointOnObject", 1, 3, -2))
sketch3.addConstraint(Sketcher.Constraint("PointOnObject", 36, 3, -2))
sketch3.addConstraint(Sketcher.Constraint("Parallel", 10, 12))
sketch3.addConstraint(Sketcher.Constraint("Perpendicular", 14, 16))
sketch3.addConstraint(Sketcher.Constraint("Parallel", 18, 21))
sketch3.addConstraint(Sketcher.Constraint("Parallel", 6, 25))
sketch3.addConstraint(Sketcher.Constraint("Perpendicular", 27, 28))
sketch3.addConstraint(Sketcher.Constraint("Parallel", 30, 33))
sketch3.addConstraint(Sketcher.Constraint("Equal", 42, 45))
sketch3.addConstraint(Sketcher.Constraint("Equal", 47, 0))
sketch3.addConstraint(Sketcher.Constraint("Equal", 2, 37))
sketch3.addConstraint(Sketcher.Constraint("Equal", 6, 8))
sketch3.addConstraint(Sketcher.Constraint("Equal", 10, 12))
sketch3.addConstraint(Sketcher.Constraint("Equal", 14, 16))
sketch3.addConstraint(Sketcher.Constraint("Equal", 18, 21))
sketch3.addConstraint(Sketcher.Constraint("Equal", 23, 25))
sketch3.addConstraint(Sketcher.Constraint("Equal", 27, 28))
sketch3.addConstraint(Sketcher.Constraint("Equal", 30, 33))
sketch3.addConstraint(Sketcher.Constraint("Radius", 1, Q("1 mm")))
sketch3.addConstraint(Sketcher.Constraint("DistanceX", 40, 2, 40, 1, Q("5 mm")))
sketch3.addConstraint(Sketcher.Constraint("Angle", 4, Q("60 deg")))
sketch3.addConstraint(Sketcher.Constraint("Angle", 8, Q("-150 deg")))
sketch3.addConstraint(Sketcher.Constraint("Distance", 4, Q("5 mm")))
sketch3.addConstraint(Sketcher.Constraint("DistanceX", -1, 1, 41, 3, Q("13 mm")))
sketch3.addConstraint(Sketcher.Constraint("DistanceX", -1, 1, 9, 3, Q("107.639399 mm")))
sketch3.addConstraint(Sketcher.Constraint("DistanceY", -1, 1, 7, 3, Q("40.045808 mm")))
sketch3.addConstraint(Sketcher.Constraint("DistanceX", -1, 1, 13, 3, Q("80.792612 mm")))
sketch3.addConstraint(Sketcher.Constraint("DistanceX", -1, 1, 17, 3, Q("89.881069 mm")))
sketch3.addConstraint(Sketcher.Constraint("DistanceX", -1, 1, 20, 3, Q("102.881069 mm")))
sketch3.addConstraint(Sketcher.Constraint("DistanceY", -1, 1, 22, 3, Q("40.057179 mm")))
sketch3.addConstraint(Sketcher.Constraint("DistanceX", 34, 3, -1, 1, Q("111.956671 mm")))
sketch3.addConstraint(Sketcher.Constraint("DistanceX", 4, 2, -1, 1, Q("103.734239 mm")))
sketch3.addConstraint(Sketcher.Constraint("DistanceY", -1, 1, 8, 2, Q("61.279611 mm")))
sketch3.addConstraint(Sketcher.Constraint("DistanceY", -1, 1, 12, 2, Q("45.779611 mm")))
sketch3.addConstraint(Sketcher.Constraint("DistanceX", 24, 1, -1, 1, Q("90.734239 mm")))
sketch3.addConstraint(Sketcher.Constraint("DistanceY", -1, 1, 28, 2, Q("48.26824 mm")))
sketch3.addConstraint(Sketcher.Constraint("DistanceY", -1, 1, 32, 1, Q("61.26824 mm")))
sketch3.addConstraint(Sketcher.Constraint("DistanceY", 1, 3, -1, 1, Q("105.502325 mm")))
sketch3.addConstraint(Sketcher.Constraint("DistanceY", -1, 1, 17, 3, Q("66.903966 mm")))
sketch3.addConstraint(Sketcher.Constraint("DistanceY", -1, 1, 24, 3, Q("66.892596 mm")))
sketch3.addConstraint(Sketcher.Constraint("DistanceX", 29, 3, -1, 1, Q("85.109883 mm")))
sketch3.addConstraint(Sketcher.Constraint("DistanceY", 36, 3, -1, 1, Q("79.502325 mm")))
sketch3.addConstraint(Sketcher.Constraint("DistanceY", 41, 3, -1, 1, Q("92.502325 mm")))
pocket2 = body.newObject("PartDesign::Pocket", "Pocket001")
pocket2.Profile = sketch3
pocket2.Length = 10
pocket2.Reversed = True

doc.recompute()
